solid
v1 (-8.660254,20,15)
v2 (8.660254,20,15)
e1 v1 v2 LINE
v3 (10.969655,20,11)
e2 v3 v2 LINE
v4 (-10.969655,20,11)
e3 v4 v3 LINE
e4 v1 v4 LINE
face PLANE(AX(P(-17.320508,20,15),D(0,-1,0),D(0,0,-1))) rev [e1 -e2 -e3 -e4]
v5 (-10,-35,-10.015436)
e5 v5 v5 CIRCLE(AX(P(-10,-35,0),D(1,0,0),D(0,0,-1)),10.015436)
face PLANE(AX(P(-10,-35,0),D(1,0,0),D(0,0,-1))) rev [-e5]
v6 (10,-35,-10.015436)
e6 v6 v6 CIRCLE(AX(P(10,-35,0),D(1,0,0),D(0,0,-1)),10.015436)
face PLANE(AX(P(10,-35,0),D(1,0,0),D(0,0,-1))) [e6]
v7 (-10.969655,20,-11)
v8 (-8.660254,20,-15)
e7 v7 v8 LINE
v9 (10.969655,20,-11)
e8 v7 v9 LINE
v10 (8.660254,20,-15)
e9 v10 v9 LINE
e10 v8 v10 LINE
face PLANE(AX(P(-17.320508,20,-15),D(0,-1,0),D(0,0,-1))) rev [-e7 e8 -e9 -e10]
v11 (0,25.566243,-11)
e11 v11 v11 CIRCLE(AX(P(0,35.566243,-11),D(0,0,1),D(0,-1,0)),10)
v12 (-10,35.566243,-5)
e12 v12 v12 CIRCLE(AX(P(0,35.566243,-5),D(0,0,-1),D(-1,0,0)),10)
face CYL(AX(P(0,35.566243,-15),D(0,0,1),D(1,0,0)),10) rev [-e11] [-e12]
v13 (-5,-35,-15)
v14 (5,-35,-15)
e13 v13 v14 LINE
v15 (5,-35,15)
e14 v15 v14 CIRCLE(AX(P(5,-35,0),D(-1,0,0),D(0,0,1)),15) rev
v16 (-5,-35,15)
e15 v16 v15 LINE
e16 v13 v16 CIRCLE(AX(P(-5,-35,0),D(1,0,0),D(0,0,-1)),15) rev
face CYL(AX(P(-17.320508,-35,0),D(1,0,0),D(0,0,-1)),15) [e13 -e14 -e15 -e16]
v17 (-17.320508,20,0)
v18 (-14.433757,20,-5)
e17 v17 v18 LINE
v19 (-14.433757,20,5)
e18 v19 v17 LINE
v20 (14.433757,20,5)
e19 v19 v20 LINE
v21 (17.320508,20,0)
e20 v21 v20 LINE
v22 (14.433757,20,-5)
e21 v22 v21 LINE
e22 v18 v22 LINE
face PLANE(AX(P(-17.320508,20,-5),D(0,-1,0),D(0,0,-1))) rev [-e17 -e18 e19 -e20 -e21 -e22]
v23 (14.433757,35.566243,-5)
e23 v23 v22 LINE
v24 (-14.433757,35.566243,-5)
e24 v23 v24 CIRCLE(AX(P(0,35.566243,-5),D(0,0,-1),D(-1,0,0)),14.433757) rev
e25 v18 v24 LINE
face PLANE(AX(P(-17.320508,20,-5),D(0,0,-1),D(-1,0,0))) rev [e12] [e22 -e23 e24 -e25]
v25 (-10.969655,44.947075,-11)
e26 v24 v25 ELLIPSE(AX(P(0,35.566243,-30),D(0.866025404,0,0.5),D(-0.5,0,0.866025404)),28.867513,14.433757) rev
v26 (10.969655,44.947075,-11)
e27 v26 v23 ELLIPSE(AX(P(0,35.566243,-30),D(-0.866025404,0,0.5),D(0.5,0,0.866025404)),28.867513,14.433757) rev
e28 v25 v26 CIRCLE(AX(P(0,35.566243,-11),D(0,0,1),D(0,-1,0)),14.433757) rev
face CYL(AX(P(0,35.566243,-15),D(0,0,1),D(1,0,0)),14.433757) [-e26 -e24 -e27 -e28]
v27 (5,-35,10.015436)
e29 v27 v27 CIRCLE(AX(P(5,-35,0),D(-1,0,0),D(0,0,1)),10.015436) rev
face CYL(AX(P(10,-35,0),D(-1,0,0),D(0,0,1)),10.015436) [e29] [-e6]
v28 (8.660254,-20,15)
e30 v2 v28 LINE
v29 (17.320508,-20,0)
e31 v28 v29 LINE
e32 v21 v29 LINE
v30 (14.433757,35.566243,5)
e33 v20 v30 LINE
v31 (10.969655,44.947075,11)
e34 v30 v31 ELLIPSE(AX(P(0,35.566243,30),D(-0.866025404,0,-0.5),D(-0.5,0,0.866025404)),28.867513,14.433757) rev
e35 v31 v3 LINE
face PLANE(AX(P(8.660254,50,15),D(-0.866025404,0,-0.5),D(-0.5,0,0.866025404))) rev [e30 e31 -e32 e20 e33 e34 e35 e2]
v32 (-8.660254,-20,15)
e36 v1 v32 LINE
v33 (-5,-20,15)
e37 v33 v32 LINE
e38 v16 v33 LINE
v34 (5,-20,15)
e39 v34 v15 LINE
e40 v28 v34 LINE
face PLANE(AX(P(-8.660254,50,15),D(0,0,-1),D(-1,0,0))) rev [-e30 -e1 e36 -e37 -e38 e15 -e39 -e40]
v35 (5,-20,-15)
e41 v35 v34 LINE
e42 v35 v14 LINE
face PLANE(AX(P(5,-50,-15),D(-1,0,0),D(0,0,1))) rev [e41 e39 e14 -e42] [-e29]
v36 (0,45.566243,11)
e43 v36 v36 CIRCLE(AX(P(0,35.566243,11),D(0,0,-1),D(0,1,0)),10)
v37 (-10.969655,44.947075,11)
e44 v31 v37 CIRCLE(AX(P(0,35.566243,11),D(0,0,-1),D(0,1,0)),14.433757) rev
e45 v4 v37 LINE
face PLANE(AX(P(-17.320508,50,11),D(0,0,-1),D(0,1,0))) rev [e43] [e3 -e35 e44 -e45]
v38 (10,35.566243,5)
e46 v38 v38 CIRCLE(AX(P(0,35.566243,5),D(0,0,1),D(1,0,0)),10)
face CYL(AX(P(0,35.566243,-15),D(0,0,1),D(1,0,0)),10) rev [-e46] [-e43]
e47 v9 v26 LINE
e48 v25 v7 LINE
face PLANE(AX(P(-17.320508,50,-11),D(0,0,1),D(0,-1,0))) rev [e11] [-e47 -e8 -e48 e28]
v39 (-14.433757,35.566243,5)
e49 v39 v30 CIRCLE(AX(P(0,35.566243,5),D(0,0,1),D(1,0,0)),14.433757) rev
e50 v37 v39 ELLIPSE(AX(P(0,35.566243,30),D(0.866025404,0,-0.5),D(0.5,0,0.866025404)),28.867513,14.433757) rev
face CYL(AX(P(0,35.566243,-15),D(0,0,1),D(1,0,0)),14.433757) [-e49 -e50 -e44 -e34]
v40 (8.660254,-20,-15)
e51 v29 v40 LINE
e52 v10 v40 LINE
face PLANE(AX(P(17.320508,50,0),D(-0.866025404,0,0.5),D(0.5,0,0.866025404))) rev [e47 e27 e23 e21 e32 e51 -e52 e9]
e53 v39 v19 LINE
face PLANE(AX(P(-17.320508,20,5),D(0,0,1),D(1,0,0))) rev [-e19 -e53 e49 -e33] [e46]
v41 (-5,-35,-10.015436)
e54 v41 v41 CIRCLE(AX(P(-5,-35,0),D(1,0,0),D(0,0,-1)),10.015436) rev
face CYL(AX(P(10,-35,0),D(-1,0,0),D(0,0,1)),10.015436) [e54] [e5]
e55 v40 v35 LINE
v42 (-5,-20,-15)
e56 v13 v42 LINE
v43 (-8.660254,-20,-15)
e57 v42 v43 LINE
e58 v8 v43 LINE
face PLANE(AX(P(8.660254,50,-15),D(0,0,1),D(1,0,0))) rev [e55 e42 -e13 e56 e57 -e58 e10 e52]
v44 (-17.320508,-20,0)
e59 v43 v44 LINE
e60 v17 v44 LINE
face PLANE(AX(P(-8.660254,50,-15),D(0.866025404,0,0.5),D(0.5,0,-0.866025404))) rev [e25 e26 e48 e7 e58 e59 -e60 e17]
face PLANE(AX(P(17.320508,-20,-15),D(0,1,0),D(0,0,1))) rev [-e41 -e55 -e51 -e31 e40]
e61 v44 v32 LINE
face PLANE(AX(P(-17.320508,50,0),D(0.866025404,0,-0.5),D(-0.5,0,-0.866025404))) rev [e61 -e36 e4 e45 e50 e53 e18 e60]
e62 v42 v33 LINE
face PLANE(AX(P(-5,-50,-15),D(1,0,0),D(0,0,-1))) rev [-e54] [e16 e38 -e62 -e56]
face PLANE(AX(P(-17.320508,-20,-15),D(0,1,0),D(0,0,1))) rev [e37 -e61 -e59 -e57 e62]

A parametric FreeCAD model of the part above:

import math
import FreeCAD as App
import Part
import Sketcher
Q = App.Units.Quantity

doc = App.newDocument("Part")
body = doc.addObject("PartDesign::Body", "Body")

# Sketch on XZ plane
sketch1 = doc.addObject("Sketcher::SketchObject", "Sketch")
body.addObject(sketch1)
sketch1.AttachmentSupport = (doc.XZ_Plane, [""])
sketch1.MapMode = "FlatFace"
sketch1.addGeometry([
    Part.LineSegment(App.Vector(-17, 0, 0), App.Vector(-9, 15, 0)),  # 0
    Part.LineSegment(App.Vector(-9, 15, 0), App.Vector(9, 15, 0)),  # 1
    Part.LineSegment(App.Vector(9, 15, 0), App.Vector(17, 0, 0)),  # 2
    Part.LineSegment(App.Vector(17, 0, 0), App.Vector(9, -15, 0)),  # 3
    Part.LineSegment(App.Vector(9, -15, 0), App.Vector(-9, -15, 0)),  # 4
    Part.LineSegment(App.Vector(-9, -15, 0), App.Vector(-17, 0, 0)),  # 5
], False)
sketch1.addConstraint([
    Sketcher.Constraint("Coincident", 0, 2, 1, 1),
    Sketcher.Constraint("Coincident", 1, 2, 2, 1),
    Sketcher.Constraint("Coincident", 2, 2, 3, 1),
    Sketcher.Constraint("Coincident", 3, 2, 4, 1),
    Sketcher.Constraint("Coincident", 4, 2, 5, 1),
    Sketcher.Constraint("Coincident", 5, 2, 0, 1),
    Sketcher.Constraint("Horizontal", 1),
    Sketcher.Constraint("Horizontal", 4),
    Sketcher.Constraint("Symmetric", 0, 2, 3, 2, -1, 1),
    Sketcher.Constraint("Symmetric", 2, 2, 5, 2, -1, 1),
    Sketcher.Constraint("PointOnObject", 2, 2, -1),
    Sketcher.Constraint("Parallel", 2, 5),
    Sketcher.Constraint("Vertical", 1, 2, 3, 2),
    Sketcher.Constraint("Angle", 0, Q("60 deg")),
    Sketcher.Constraint("DistanceY", -1, 1, 0, 2, Q("15 mm")),
    Sketcher.Constraint("DistanceX", 1, 1, 1, 2, Q("17.320508 mm")),
])
pad1 = doc.addObject("PartDesign::Pad", "Pad")
body.addObject(pad1)
pad1.Profile = sketch1
pad1.Length = 100
pad1.Midplane = True

# Sketch on XY plane
sketch2 = doc.addObject("Sketcher::SketchObject", "Sketch001")
body.addObject(sketch2)
sketch2.AttachmentSupport = (doc.XY_Plane, [""])
sketch2.MapMode = "FlatFace"
sketch2.addGeometry([
    Part.LineSegment(App.Vector(-17, -20, 0), App.Vector(-17, -50, 0)),  # 0
    Part.LineSegment(App.Vector(-17, -50, 0), App.Vector(-5, -50, 0)),  # 1
    Part.LineSegment(App.Vector(-5, -50, 0), App.Vector(-5, -20, 0)),  # 2
    Part.LineSegment(App.Vector(-5, -20, 0), App.Vector(-17, -20, 0)),  # 3
    Part.LineSegment(App.Vector(5, -20, 0), App.Vector(5, -50, 0)),  # 4
    Part.LineSegment(App.Vector(5, -50, 0), App.Vector(17, -50, 0)),  # 5
    Part.LineSegment(App.Vector(17, -50, 0), App.Vector(17, -20, 0)),  # 6
    Part.LineSegment(App.Vector(17, -20, 0), App.Vector(5, -20, 0)),  # 7
], False)
sketch2.addConstraint([
    Sketcher.Constraint("Coincident", 0, 2, 1, 1),
    Sketcher.Constraint("Coincident", 1, 2, 2, 1),
    Sketcher.Constraint("Coincident", 2, 2, 3, 1),
    Sketcher.Constraint("Coincident", 3, 2, 0, 1),
    Sketcher.Constraint("Coincident", 4, 2, 5, 1),
    Sketcher.Constraint("Coincident", 5, 2, 6, 1),
    Sketcher.Constraint("Coincident", 6, 2, 7, 1),
    Sketcher.Constraint("Coincident", 7, 2, 4, 1),
    Sketcher.Constraint("Vertical", 0),
    Sketcher.Constraint("Horizontal", 1),
    Sketcher.Constraint("Vertical", 2),
    Sketcher.Constraint("Horizontal", 3),
    Sketcher.Constraint("Vertical", 4),
    Sketcher.Constraint("Horizontal", 5),
    Sketcher.Constraint("Vertical", 6),
    Sketcher.Constraint("Horizontal", 7),
    Sketcher.Constraint("Symmetric", 1, 2, 4, 2, -2),
    Sketcher.Constraint("Symmetric", 3, 2, 6, 2, -2),
    Sketcher.Constraint("DistanceY", 0, 2, 0, 1, Q("30 mm")),
    Sketcher.Constraint("DistanceY", 0, 2, -1, 1, Q("50 mm")),
    Sketcher.Constraint("DistanceX", 1, 2, -1, 1, Q("5 mm")),
    Sketcher.Constraint("DistanceX", 1, 1, 1, 2, Q("12.320508 mm")),
])
pocket1 = doc.addObject("PartDesign::Pocket", "Pocket")
body.addObject(pocket1)
pocket1.Profile = sketch2
pocket1.Type = "ThroughAll"
pocket1.Midplane = True

# Sketch on YZ plane
sketch3 = doc.addObject("Sketcher::SketchObject", "Sketch002")
body.addObject(sketch3)
sketch3.AttachmentSupport = (doc.YZ_Plane, [""])
sketch3.MapMode = "FlatFace"
sketch3.AttachmentOffset = App.Placement(App.Vector(0, 0, 5), App.Rotation())
sketch3.addGeometry([
    Part.LineSegment(App.Vector(-35, 15, 0), App.Vector(-53, 15, 0)),
    Part.LineSegment(App.Vector(-53, 15, 0), App.Vector(-53, -15, 0)),
    Part.LineSegment(App.Vector(-53, -15, 0), App.Vector(-35, -15, 0)),
    Part.ArcOfCircle(Part.Circle(App.Vector(-35, 0, 0), App.Vector(0, 0, 1), 15), math.radians(90), math.radians(270)),
], False)
sketch3.addConstraint([
    Sketcher.Constraint("Coincident", 0, 2, 1, 1),
    Sketcher.Constraint("Coincident", 1, 2, 2, 1),
    Sketcher.Constraint("Tangent", 2, 2, 3, 2),
    Sketcher.Constraint("Tangent", 3, 1, 0, 1),
    Sketcher.Constraint("Horizontal", 0),
    Sketcher.Constraint("Vertical", 1),
    Sketcher.Constraint("Horizontal", 2),
    Sketcher.Constraint("PointOnObject", 3, 3, -1),
    Sketcher.Constraint("Radius", 3, Q("15 mm")),
    Sketcher.Constraint("DistanceX", 3, 3, -1, 1, Q("35 mm")),
    Sketcher.Constraint("DistanceX", 0, 2, 0, 1, Q("18.00267 mm")),
])
pocket2 = doc.addObject("PartDesign::Pocket", "Pocket001")
body.addObject(pocket2)
pocket2.Profile = sketch3
pocket2.Type = "ThroughAll"
pocket2.Midplane = True

# Sketch on YZ plane
sketch4 = doc.addObject("Sketcher::SketchObject", "Sketch003")
body.addObject(sketch4)
sketch4.AttachmentSupport = (doc.YZ_Plane, [""])
sketch4.MapMode = "FlatFace"
sketch4.addGeometry(Part.Circle(App.Vector(-35, 0, 0), App.Vector(0, 0, 1), 10), False)
sketch4.addConstraint([
    Sketcher.Constraint("PointOnObject", 0, 3, -1),
    Sketcher.Constraint("DistanceX", 0, 3, -1, 1, Q("35 mm")),
    Sketcher.Constraint("Diameter", 0, Q("20.030872 mm")),
])
pad2 = doc.addObject("PartDesign::Pad", "Pad001")
body.addObject(pad2)
pad2.Profile = sketch4
pad2.Length = 20
pad2.Midplane = True

# Sketch on YZ plane
sketch5 = doc.addObject("Sketcher::SketchObject", "Sketch004")
body.addObject(sketch5)
sketch5.AttachmentSupport = (doc.YZ_Plane, [""])
sketch5.MapMode = "FlatFace"
sketch5.addGeometry([
    Part.LineSegment(App.Vector(50, 5, 0), App.Vector(20, 5, 0)),  # 0
    Part.LineSegment(App.Vector(20, 5, 0), App.Vector(20, -5, 0)),  # 1
    Part.LineSegment(App.Vector(20, -5, 0), App.Vector(50, -5, 0)),  # 2
    Part.LineSegment(App.Vector(50, -5, 0), App.Vector(50, 5, 0)),  # 3
    Part.LineSegment(App.Vector(50, 15, 0), App.Vector(20, 15, 0)),  # 4
    Part.LineSegment(App.Vector(20, 15, 0), App.Vector(20, 11, 0)),  # 5
    Part.LineSegment(App.Vector(20, 11, 0), App.Vector(50, 11, 0)),  # 6
    Part.LineSegment(App.Vector(50, 11, 0), App.Vector(50, 15, 0)),  # 7
    Part.LineSegment(App.Vector(50, -11, 0), App.Vector(20, -11, 0)),  # 8
    Part.LineSegment(App.Vector(20, -11, 0), App.Vector(20, -15, 0)),  # 9
    Part.LineSegment(App.Vector(20, -15, 0), App.Vector(50, -15, 0)),  # 10
    Part.LineSegment(App.Vector(50, -15, 0), App.Vector(50, -11, 0)),  # 11
], False)
sketch5.addConstraint([
    Sketcher.Constraint("Coincident", 0, 2, 1, 1),
    Sketcher.Constraint("Coincident", 1, 2, 2, 1),
    Sketcher.Constraint("Coincident", 2, 2, 3, 1),
    Sketcher.Constraint("Coincident", 3, 2, 0, 1),
    Sketcher.Constraint("Coincident", 4, 2, 5, 1),
    Sketcher.Constraint("Coincident", 5, 2, 6, 1),
    Sketcher.Constraint("Coincident", 6, 2, 7, 1),
    Sketcher.Constraint("Coincident", 7, 2, 4, 1),
    Sketcher.Constraint("Coincident", 8, 2, 9, 1),
    Sketcher.Constraint("Coincident", 9, 2, 10, 1),
    Sketcher.Constraint("Coincident", 10, 2, 11, 1),
    Sketcher.Constraint("Coincident", 11, 2, 8, 1),
    Sketcher.Constraint("Horizontal", 0),
    Sketcher.Constraint("Vertical", 1),
    Sketcher.Constraint("Horizontal", 2),
    Sketcher.Constraint("Vertical", 3),
    Sketcher.Constraint("Horizontal", 4),
    Sketcher.Constraint("Vertical", 5),
    Sketcher.Constraint("Horizontal", 6),
    Sketcher.Constraint("Vertical", 7),
    Sketcher.Constraint("Horizontal", 8),
    Sketcher.Constraint("Vertical", 9),
    Sketcher.Constraint("Horizontal", 10),
    Sketcher.Constraint("Vertical", 11),
    Sketcher.Constraint("Symmetric", 5, 2, 8, 2, -1),
    Sketcher.Constraint("Symmetric", 7, 2, 10, 2, -1),
    Sketcher.Constraint("Vertical", 1, 2, 4, 2),
    Sketcher.Constraint("Vertical", 3, 2, 6, 2),
    Sketcher.Constraint("DistanceX", 0, 2, 0, 1, Q("30 mm")),
    Sketcher.Constraint("DistanceY", 1, 2, 1, 1, Q("10 mm")),
    Sketcher.Constraint("DistanceY", 5, 2, 5, 1, Q("4 mm")),
    Sketcher.Constraint("DistanceX", -1, 1, 0, 2, Q("20 mm")),
    Sketcher.Constraint("DistanceY", -1, 1, 0, 2, Q("5 mm")),
    Sketcher.Constraint("DistanceY", -1, 1, 4, 2, Q("15 mm")),
])
pocket3 = doc.addObject("PartDesign::Pocket", "Pocket002")
body.addObject(pocket3)
pocket3.Profile = sketch5
pocket3.Type = "ThroughAll"
pocket3.Midplane = True

# Sketch on XY plane
sketch6 = doc.addObject("Sketcher::SketchObject", "Sketch005")
body.addObject(sketch6)
sketch6.AttachmentSupport = (doc.XY_Plane, [""])
sketch6.MapMode = "FlatFace"
sketch6.addGeometry([
    Part.Circle(App.Vector(0, 36, 0), App.Vector(0, 0, 1), 10),  # 0
    Part.LineSegment(App.Vector(-14, 54, 0), App.Vector(-14, 36, 0)),  # 1
    Part.ArcOfCircle(Part.Circle(App.Vector(0, 36, 0), App.Vector(0, 0, 1), 14), math.radians(0), math.radians(180)),  # 2
    Part.LineSegment(App.Vector(14, 36, 0), App.Vector(14, 54, 0)),  # 3
    Part.LineSegment(App.Vector(14, 54, 0), App.Vector(-14, 54, 0)),  # 4
], False)
sketch6.addConstraint([
    Sketcher.Constraint("Tangent", 1, 2, 2, 2),
    Sketcher.Constraint("Tangent", 2, 1, 3, 1),
    Sketcher.Constraint("Coincident", 3, 2, 4, 1),
    Sketcher.Constraint("Coincident", 4, 2, 1, 1),
    Sketcher.Constraint("Vertical", 1),
    Sketcher.Constraint("Vertical", 3),
    Sketcher.Constraint("Horizontal", 4),
    Sketcher.Constraint("Coincident", 2, 3, 0, 3),
    Sketcher.Constraint("PointOnObject", 0, 3, -2),
    Sketcher.Constraint("Diameter", 0, Q("20 mm")),
    Sketcher.Constraint("Radius", 2, Q("14.433757 mm")),
    Sketcher.Constraint("DistanceY", 1, 2, 1, 1, Q("18.49573 mm")),
    Sketcher.Constraint("DistanceY", -1, 1, 0, 3, Q("35.566243 mm")),
])
pocket4 = doc.addObject("PartDesign::Pocket", "Pocket003")
body.addObject(pocket4)
pocket4.Profile = sketch6
pocket4.Type = "ThroughAll"
pocket4.Midplane = True

doc.recompute()
